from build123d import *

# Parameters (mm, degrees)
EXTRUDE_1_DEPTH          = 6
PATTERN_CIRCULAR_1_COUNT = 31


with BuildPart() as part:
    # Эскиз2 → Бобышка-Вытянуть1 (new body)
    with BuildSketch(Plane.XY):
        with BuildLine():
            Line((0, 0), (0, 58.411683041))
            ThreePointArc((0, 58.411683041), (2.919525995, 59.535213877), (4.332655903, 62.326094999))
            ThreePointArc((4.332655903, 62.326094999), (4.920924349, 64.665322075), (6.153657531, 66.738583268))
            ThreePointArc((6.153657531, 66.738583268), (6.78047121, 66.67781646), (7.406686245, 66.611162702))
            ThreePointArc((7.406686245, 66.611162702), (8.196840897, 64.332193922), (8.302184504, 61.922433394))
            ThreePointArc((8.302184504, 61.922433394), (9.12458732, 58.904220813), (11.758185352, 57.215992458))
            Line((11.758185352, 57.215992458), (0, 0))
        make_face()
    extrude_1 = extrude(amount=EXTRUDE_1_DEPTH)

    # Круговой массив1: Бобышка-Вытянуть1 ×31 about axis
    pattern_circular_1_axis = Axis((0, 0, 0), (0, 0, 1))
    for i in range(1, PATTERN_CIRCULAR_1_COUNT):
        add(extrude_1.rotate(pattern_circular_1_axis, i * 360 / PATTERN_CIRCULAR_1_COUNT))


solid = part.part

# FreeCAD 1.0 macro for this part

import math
import FreeCAD as App
import Part
import Sketcher

doc = App.newDocument("Part")
body = doc.addObject("PartDesign::Body", "Body")

# Sketch on XY plane
sketch1 = body.newObject("Sketcher::SketchObject", "Sketch")
sketch1.AttachmentSupport = (doc.getObject("XY_Plane"), [""])
sketch1.MapMode = "FlatFace"
sketch1.addGeometry([
    Part.LineSegment(App.Vector(0, 58.4, 0), App.Vector(0, 0, 0)),  # 0
    Part.LineSegment(App.Vector(0, 0, 0), App.Vector(11.8, 57.2, 0)),  # 1
    Part.ArcOfCircle(Part.Circle(App.Vector(12.6, 61.5, 0), App.Vector(0, 0, 1), 4.4), math.radians(174), math.radians(258)),  # 2
    Part.ArcOfCircle(Part.Circle(App.Vector(0, 62.8, 0), App.Vector(0, 0, 1), 8.3), math.radians(-6), math.radians(27)),  # 3
    Part.ArcOfCircle(Part.Circle(App.Vector(0, 0, 0), App.Vector(0, 0, 1), 67), math.radians(83.66), math.radians(84.73)),  # 4
    Part.ArcOfCircle(Part.Circle(App.Vector(12.6, 61.5, 0), App.Vector(0, 0, 1), 8.3), math.radians(141), math.radians(174)),  # 5
    Part.ArcOfCircle(Part.Circle(App.Vector(0, 62.8, 0), App.Vector(0, 0, 1), 4.4), math.radians(-90), math.radians(-6)),  # 6
], False)
sketch1.addConstraint([
    Sketcher.Constraint("Coincident", 0, 2, 1, 1),
    Sketcher.Constraint("Coincident", 1, 2, 2, 2),
    Sketcher.Constraint("Tangent", 2, 1, 3, 1),
    Sketcher.Constraint("Coincident", 3, 2, 4, 1),
    Sketcher.Constraint("Coincident", 4, 2, 5, 1),
    Sketcher.Constraint("Tangent", 5, 2, 6, 2),
    Sketcher.Constraint("Coincident", 6, 1, 0, 1),
    Sketcher.Constraint("Vertical", 0),
    Sketcher.Constraint("Coincident", 0, 2, -1, 1),
    Sketcher.Constraint("Coincident", 5, 3, 2, 3),
    Sketcher.Constraint("Coincident", 6, 3, 3, 3),
    Sketcher.Constraint("Equal", 3, 5),
    Sketcher.Constraint("PointOnObject", 3, 3, -2),
    Sketcher.Constraint("PointOnObject", 4, 3, -2),
    Sketcher.Constraint("Radius", 2, 4.355),
    Sketcher.Constraint("Radius", 3, 8.345),
    Sketcher.Constraint("Radius", 4, 67.021672),
    Sketcher.Constraint("DistanceX", 2, 1, 1, 2, 3.456001),
    Sketcher.Constraint("DistanceX", 5, 2, 4, 2, 1.821002),
    Sketcher.Constraint("DistanceX", 3, 2, 2, 1, 0.895498),
    Sketcher.Constraint("DistanceY", 0, 2, 0, 1, 58.411683),
])
pad1 = body.newObject("PartDesign::Pad", "Pad")
pad1.Profile = sketch1
pad1.Length = 6
doc.recompute()

polarpattern = body.newObject("PartDesign::PolarPattern", "PolarPattern")
polarpattern.Originals = [pad1]
polarpattern.Axis = (doc.getObject("Z_Axis"), [""])
polarpattern.Angle = 360
polarpattern.Occurrences = 31
body.Tip = polarpattern

doc.recompute()
